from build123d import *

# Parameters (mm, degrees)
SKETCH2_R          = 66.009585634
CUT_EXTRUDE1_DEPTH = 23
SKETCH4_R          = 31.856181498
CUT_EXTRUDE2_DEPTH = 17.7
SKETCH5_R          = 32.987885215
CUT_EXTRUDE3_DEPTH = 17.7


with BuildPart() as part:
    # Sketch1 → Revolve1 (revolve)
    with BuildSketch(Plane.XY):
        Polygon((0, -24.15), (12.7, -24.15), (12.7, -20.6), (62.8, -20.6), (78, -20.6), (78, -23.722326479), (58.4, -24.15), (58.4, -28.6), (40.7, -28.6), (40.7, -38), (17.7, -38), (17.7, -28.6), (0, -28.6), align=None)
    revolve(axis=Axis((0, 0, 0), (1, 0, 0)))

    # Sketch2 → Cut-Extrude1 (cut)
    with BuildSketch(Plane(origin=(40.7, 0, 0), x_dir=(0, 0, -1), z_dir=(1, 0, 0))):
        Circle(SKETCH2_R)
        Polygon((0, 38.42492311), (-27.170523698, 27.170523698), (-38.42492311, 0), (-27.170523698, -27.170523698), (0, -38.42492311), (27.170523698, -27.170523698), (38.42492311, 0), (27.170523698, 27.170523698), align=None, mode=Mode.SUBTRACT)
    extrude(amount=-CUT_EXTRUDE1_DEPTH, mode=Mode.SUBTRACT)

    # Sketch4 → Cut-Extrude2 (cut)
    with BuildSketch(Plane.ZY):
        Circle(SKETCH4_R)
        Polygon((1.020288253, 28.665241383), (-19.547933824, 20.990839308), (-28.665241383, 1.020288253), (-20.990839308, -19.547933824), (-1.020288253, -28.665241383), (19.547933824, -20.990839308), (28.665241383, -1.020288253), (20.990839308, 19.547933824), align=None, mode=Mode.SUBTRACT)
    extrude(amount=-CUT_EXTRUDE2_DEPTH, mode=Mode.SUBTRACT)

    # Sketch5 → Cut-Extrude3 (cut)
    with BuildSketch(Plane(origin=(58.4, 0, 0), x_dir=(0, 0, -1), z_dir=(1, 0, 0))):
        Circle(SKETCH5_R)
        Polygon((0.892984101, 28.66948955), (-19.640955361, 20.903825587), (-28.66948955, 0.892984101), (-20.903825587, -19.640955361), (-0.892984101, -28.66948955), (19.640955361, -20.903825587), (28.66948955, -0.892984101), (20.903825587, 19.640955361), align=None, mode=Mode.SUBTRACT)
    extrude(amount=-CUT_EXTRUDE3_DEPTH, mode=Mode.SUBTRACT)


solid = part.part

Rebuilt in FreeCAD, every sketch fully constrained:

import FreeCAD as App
import Part
import Sketcher
Q = App.Units.Quantity

doc = App.newDocument("Part")
body = doc.addObject("PartDesign::Body", "Body")

# Sketch on XY plane
sketch1 = doc.addObject("Sketcher::SketchObject", "Sketch")
body.addObject(sketch1)
sketch1.AttachmentSupport = (doc.XY_Plane, [""])
sketch1.MapMode = "FlatFace"
sketch1.addGeometry([
    Part.LineSegment(App.Vector(12.7, -24.15, 0), App.Vector(0, -24.15, 0)),  # 0
    Part.LineSegment(App.Vector(0, -24.15, 0), App.Vector(0, -28.6, 0)),  # 1
    Part.LineSegment(App.Vector(0, -28.6, 0), App.Vector(17.7, -28.6, 0)),  # 2
    Part.LineSegment(App.Vector(17.7, -28.6, 0), App.Vector(17.7, -38, 0)),  # 3
    Part.LineSegment(App.Vector(17.7, -38, 0), App.Vector(40.7, -38, 0)),  # 4
    Part.LineSegment(App.Vector(40.7, -38, 0), App.Vector(40.7, -28.6, 0)),  # 5
    Part.LineSegment(App.Vector(40.7, -28.6, 0), App.Vector(58.4, -28.6, 0)),  # 6
    Part.LineSegment(App.Vector(58.4, -28.6, 0), App.Vector(58.4, -24.15, 0)),  # 7
    Part.LineSegment(App.Vector(58.4, -24.15, 0), App.Vector(78, -23.722326, 0)),  # 8
    Part.LineSegment(App.Vector(78, -23.722326, 0), App.Vector(78, -20.6, 0)),  # 9
    Part.LineSegment(App.Vector(78, -20.6, 0), App.Vector(12.7, -20.6, 0)),  # 10
    Part.LineSegment(App.Vector(12.7, -20.6, 0), App.Vector(12.7, -24.15, 0)),  # 11
], False)
sketch1.addConstraint([
    Sketcher.Constraint("Coincident", 0, 2, 1, 1),
    Sketcher.Constraint("Coincident", 1, 2, 2, 1),
    Sketcher.Constraint("Coincident", 2, 2, 3, 1),
    Sketcher.Constraint("Coincident", 3, 2, 4, 1),
    Sketcher.Constraint("Coincident", 4, 2, 5, 1),
    Sketcher.Constraint("Coincident", 5, 2, 6, 1),
    Sketcher.Constraint("Coincident", 6, 2, 7, 1),
    Sketcher.Constraint("Coincident", 7, 2, 8, 1),
    Sketcher.Constraint("Coincident", 8, 2, 9, 1),
    Sketcher.Constraint("Coincident", 9, 2, 10, 1),
    Sketcher.Constraint("Coincident", 10, 2, 11, 1),
    Sketcher.Constraint("Coincident", 11, 2, 0, 1),
    Sketcher.Constraint("Horizontal", 0),
    Sketcher.Constraint("Vertical", 1),
    Sketcher.Constraint("Horizontal", 2),
    Sketcher.Constraint("Vertical", 3),
    Sketcher.Constraint("Horizontal", 4),
    Sketcher.Constraint("Vertical", 5),
    Sketcher.Constraint("Horizontal", 6),
    Sketcher.Constraint("Vertical", 7),
    Sketcher.Constraint("Vertical", 9),
    Sketcher.Constraint("Horizontal", 10),
    Sketcher.Constraint("Vertical", 11),
    Sketcher.Constraint("PointOnObject", 0, 2, -2),
    Sketcher.Constraint("Horizontal", 2, 2, 5, 2),
    Sketcher.Constraint("Horizontal", 0, 2, 7, 2),
    Sketcher.Constraint("Equal", 2, 6),
    Sketcher.Constraint("DistanceX", 4, 1, 4, 2, Q("23 mm")),
    Sketcher.Constraint("DistanceX", 0, 2, 0, 1, Q("12.7 mm")),
    Sketcher.Constraint("DistanceX", 2, 1, 2, 2, Q("17.7 mm")),
    Sketcher.Constraint("DistanceX", 10, 2, 10, 1, Q("65.3 mm")),
    Sketcher.Constraint("DistanceY", 3, 2, 3, 1, Q("9.4 mm")),
    Sketcher.Constraint("DistanceY", 3, 2, -1, 1, Q("38 mm")),
    Sketcher.Constraint("DistanceY", 6, 2, 9, 2, Q("8 mm")),
    Sketcher.Constraint("DistanceY", 1, 2, 1, 1, Q("4.45 mm")),
    Sketcher.Constraint("Angle", 8, Q("1.25 deg")),
])
revolution = doc.addObject("PartDesign::Revolution", "Revolution")
body.addObject(revolution)
revolution.Profile = sketch1
revolution.ReferenceAxis = (sketch1, ["H_Axis"])
revolution.Angle = 360

# Sketch on YZ plane
sketch2 = doc.addObject("Sketcher::SketchObject", "Sketch001")
body.addObject(sketch2)
sketch2.AttachmentSupport = (doc.YZ_Plane, [""])
sketch2.MapMode = "FlatFace"
sketch2.AttachmentOffset = App.Placement(App.Vector(0, 0, 40.7), App.Rotation())
sketch2.addGeometry([
    Part.Circle(App.Vector(0, 0, 0), App.Vector(0, 0, 1), 66.009586),  # 0
    Part.LineSegment(App.Vector(27.170524, 27.170524, 0), App.Vector(38.424923, 0, 0)),  # 1
    Part.LineSegment(App.Vector(38.424923, 0, 0), App.Vector(27.170524, -27.170524, 0)),  # 2
    Part.LineSegment(App.Vector(27.170524, -27.170524, 0), App.Vector(0, -38.424923, 0)),  # 3
    Part.LineSegment(App.Vector(0, -38.424923, 0), App.Vector(-27.170524, -27.170524, 0)),  # 4
    Part.LineSegment(App.Vector(-27.170524, -27.170524, 0), App.Vector(-38.424923, 0, 0)),  # 5
    Part.LineSegment(App.Vector(-38.424923, 0, 0), App.Vector(-27.170524, 27.170524, 0)),  # 6
    Part.LineSegment(App.Vector(-27.170524, 27.170524, 0), App.Vector(0, 38.424923, 0)),  # 7
    Part.LineSegment(App.Vector(0, 38.424923, 0), App.Vector(27.170524, 27.170524, 0)),  # 8
], False)
sketch2.addConstraint([
    Sketcher.Constraint("Coincident", 1, 2, 2, 1),
    Sketcher.Constraint("Coincident", 2, 2, 3, 1),
    Sketcher.Constraint("Coincident", 3, 2, 4, 1),
    Sketcher.Constraint("Coincident", 4, 2, 5, 1),
    Sketcher.Constraint("Coincident", 5, 2, 6, 1),
    Sketcher.Constraint("Coincident", 6, 2, 7, 1),
    Sketcher.Constraint("Coincident", 7, 2, 8, 1),
    Sketcher.Constraint("Coincident", 8, 2, 1, 1),
    Sketcher.Constraint("Coincident", 0, 3, -1, 1),
    Sketcher.Constraint("Symmetric", 1, 2, 5, 2, -1, 1),
    Sketcher.Constraint("Symmetric", 2, 2, 6, 2, -1, 1),
    Sketcher.Constraint("Symmetric", 3, 2, 7, 2, -1, 1),
    Sketcher.Constraint("Symmetric", 4, 2, 8, 2, -1, 1),
    Sketcher.Constraint("Symmetric", 2, 2, 4, 2, -2),
    Sketcher.Constraint("PointOnObject", 1, 2, -1),
    Sketcher.Constraint("PointOnObject", 3, 2, -2),
    Sketcher.Constraint("Perpendicular", 1, 3),
    Sketcher.Constraint("Equal", 2, 3),
    Sketcher.Constraint("Angle", 1, Q("-67.5 deg")),
    Sketcher.Constraint("Diameter", 0, Q("132.019171 mm")),
    Sketcher.Constraint("DistanceX", 2, 2, 1, 2, Q("11.254399 mm")),
])
pocket1 = doc.addObject("PartDesign::Pocket", "Pocket")
body.addObject(pocket1)
pocket1.Profile = sketch2
pocket1.Length = 23

# Sketch on YZ plane
sketch3 = doc.addObject("Sketcher::SketchObject", "Sketch002")
body.addObject(sketch3)
sketch3.AttachmentSupport = (doc.YZ_Plane, [""])
sketch3.MapMode = "FlatFace"
sketch3.addGeometry([
    Part.Circle(App.Vector(0, 0, 0), App.Vector(0, 0, 1), 31.856181),  # 0
    Part.LineSegment(App.Vector(20.990839, -19.547934, 0), App.Vector(28.665241, 1.020288, 0)),  # 1
    Part.LineSegment(App.Vector(28.665241, 1.020288, 0), App.Vector(19.547934, 20.990839, 0)),  # 2
    Part.LineSegment(App.Vector(19.547934, 20.990839, 0), App.Vector(-1.020288, 28.665241, 0)),  # 3
    Part.LineSegment(App.Vector(-1.020288, 28.665241, 0), App.Vector(-20.990839, 19.547934, 0)),  # 4
    Part.LineSegment(App.Vector(-20.990839, 19.547934, 0), App.Vector(-28.665241, -1.020288, 0)),  # 5
    Part.LineSegment(App.Vector(-28.665241, -1.020288, 0), App.Vector(-19.547934, -20.990839, 0)),  # 6
    Part.LineSegment(App.Vector(-19.547934, -20.990839, 0), App.Vector(1.020288, -28.665241, 0)),  # 7
    Part.LineSegment(App.Vector(1.020288, -28.665241, 0), App.Vector(20.990839, -19.547934, 0)),  # 8
], False)
sketch3.addConstraint([
    Sketcher.Constraint("Coincident", 1, 2, 2, 1),
    Sketcher.Constraint("Coincident", 2, 2, 3, 1),
    Sketcher.Constraint("Coincident", 3, 2, 4, 1),
    Sketcher.Constraint("Coincident", 4, 2, 5, 1),
    Sketcher.Constraint("Coincident", 5, 2, 6, 1),
    Sketcher.Constraint("Coincident", 6, 2, 7, 1),
    Sketcher.Constraint("Coincident", 7, 2, 8, 1),
    Sketcher.Constraint("Coincident", 8, 2, 1, 1),
    Sketcher.Constraint("Coincident", 0, 3, -1, 1),
    Sketcher.Constraint("Symmetric", 1, 2, 5, 2, -1, 1),
    Sketcher.Constraint("Symmetric", 2, 2, 6, 2, -1, 1),
    Sketcher.Constraint("Symmetric", 3, 2, 7, 2, -1, 1),
    Sketcher.Constraint("Symmetric", 4, 2, 8, 2, -1, 1),
    Sketcher.Constraint("Perpendicular", 1, 3),
    Sketcher.Constraint("Perpendicular", 2, 4),
    Sketcher.Constraint("Equal", 1, 2),
    Sketcher.Constraint("Equal", 2, 3),
    Sketcher.Constraint("Equal", 3, 4),
    Sketcher.Constraint("Diameter", 0, Q("63.712363 mm")),
    Sketcher.Constraint("Distance", 1, Q("21.953319 mm")),
    Sketcher.Constraint("DistanceX", -1, 1, 1, 2, Q("28.665241 mm")),
    Sketcher.Constraint("DistanceY", -1, 1, 1, 2, Q("1.020288 mm")),
])
pocket2 = doc.addObject("PartDesign::Pocket", "Pocket001")
body.addObject(pocket2)
pocket2.Profile = sketch3
pocket2.Length = 17.7
pocket2.Reversed = True

# Sketch on YZ plane
sketch4 = doc.addObject("Sketcher::SketchObject", "Sketch003")
body.addObject(sketch4)
sketch4.AttachmentSupport = (doc.YZ_Plane, [""])
sketch4.MapMode = "FlatFace"
sketch4.AttachmentOffset = App.Placement(App.Vector(0, 0, 58.4), App.Rotation())
sketch4.addGeometry([
    Part.Circle(App.Vector(0, 0, 0), App.Vector(0, 0, 1), 32.987885),  # 0
    Part.LineSegment(App.Vector(20.903826, 19.640955, 0), App.Vector(28.66949, -0.892984, 0)),  # 1
    Part.LineSegment(App.Vector(28.66949, -0.892984, 0), App.Vector(19.640955, -20.903826, 0)),  # 2
    Part.LineSegment(App.Vector(19.640955, -20.903826, 0), App.Vector(-0.892984, -28.66949, 0)),  # 3
    Part.LineSegment(App.Vector(-0.892984, -28.66949, 0), App.Vector(-20.903826, -19.640955, 0)),  # 4
    Part.LineSegment(App.Vector(-20.903826, -19.640955, 0), App.Vector(-28.66949, 0.892984, 0)),  # 5
    Part.LineSegment(App.Vector(-28.66949, 0.892984, 0), App.Vector(-19.640955, 20.903826, 0)),  # 6
    Part.LineSegment(App.Vector(-19.640955, 20.903826, 0), App.Vector(0.892984, 28.66949, 0)),  # 7
    Part.LineSegment(App.Vector(0.892984, 28.66949, 0), App.Vector(20.903826, 19.640955, 0)),  # 8
], False)
sketch4.addConstraint([
    Sketcher.Constraint("Coincident", 1, 2, 2, 1),
    Sketcher.Constraint("Coincident", 2, 2, 3, 1),
    Sketcher.Constraint("Coincident", 3, 2, 4, 1),
    Sketcher.Constraint("Coincident", 4, 2, 5, 1),
    Sketcher.Constraint("Coincident", 5, 2, 6, 1),
    Sketcher.Constraint("Coincident", 6, 2, 7, 1),
    Sketcher.Constraint("Coincident", 7, 2, 8, 1),
    Sketcher.Constraint("Coincident", 8, 2, 1, 1),
    Sketcher.Constraint("Coincident", 0, 3, -1, 1),
    Sketcher.Constraint("Symmetric", 1, 2, 5, 2, -1, 1),
    Sketcher.Constraint("Symmetric", 2, 2, 6, 2, -1, 1),
    Sketcher.Constraint("Symmetric", 3, 2, 7, 2, -1, 1),
    Sketcher.Constraint("Symmetric", 4, 2, 8, 2, -1, 1),
    Sketcher.Constraint("Perpendicular", 1, 3),
    Sketcher.Constraint("Perpendicular", 2, 4),
    Sketcher.Constraint("Equal", 1, 2),
    Sketcher.Constraint("Equal", 2, 3),
    Sketcher.Constraint("Equal", 3, 4),
    Sketcher.Constraint("Diameter", 0, Q("65.97577 mm")),
    Sketcher.Constraint("Distance", 1, Q("21.953319 mm")),
    Sketcher.Constraint("DistanceX", -1, 1, 1, 2, Q("28.66949 mm")),
    Sketcher.Constraint("DistanceY", 2, 2, 1, 2, Q("20.010841 mm")),
])
pocket3 = doc.addObject("PartDesign::Pocket", "Pocket002")
body.addObject(pocket3)
pocket3.Profile = sketch4
pocket3.Length = 17.7

doc.recompute()
